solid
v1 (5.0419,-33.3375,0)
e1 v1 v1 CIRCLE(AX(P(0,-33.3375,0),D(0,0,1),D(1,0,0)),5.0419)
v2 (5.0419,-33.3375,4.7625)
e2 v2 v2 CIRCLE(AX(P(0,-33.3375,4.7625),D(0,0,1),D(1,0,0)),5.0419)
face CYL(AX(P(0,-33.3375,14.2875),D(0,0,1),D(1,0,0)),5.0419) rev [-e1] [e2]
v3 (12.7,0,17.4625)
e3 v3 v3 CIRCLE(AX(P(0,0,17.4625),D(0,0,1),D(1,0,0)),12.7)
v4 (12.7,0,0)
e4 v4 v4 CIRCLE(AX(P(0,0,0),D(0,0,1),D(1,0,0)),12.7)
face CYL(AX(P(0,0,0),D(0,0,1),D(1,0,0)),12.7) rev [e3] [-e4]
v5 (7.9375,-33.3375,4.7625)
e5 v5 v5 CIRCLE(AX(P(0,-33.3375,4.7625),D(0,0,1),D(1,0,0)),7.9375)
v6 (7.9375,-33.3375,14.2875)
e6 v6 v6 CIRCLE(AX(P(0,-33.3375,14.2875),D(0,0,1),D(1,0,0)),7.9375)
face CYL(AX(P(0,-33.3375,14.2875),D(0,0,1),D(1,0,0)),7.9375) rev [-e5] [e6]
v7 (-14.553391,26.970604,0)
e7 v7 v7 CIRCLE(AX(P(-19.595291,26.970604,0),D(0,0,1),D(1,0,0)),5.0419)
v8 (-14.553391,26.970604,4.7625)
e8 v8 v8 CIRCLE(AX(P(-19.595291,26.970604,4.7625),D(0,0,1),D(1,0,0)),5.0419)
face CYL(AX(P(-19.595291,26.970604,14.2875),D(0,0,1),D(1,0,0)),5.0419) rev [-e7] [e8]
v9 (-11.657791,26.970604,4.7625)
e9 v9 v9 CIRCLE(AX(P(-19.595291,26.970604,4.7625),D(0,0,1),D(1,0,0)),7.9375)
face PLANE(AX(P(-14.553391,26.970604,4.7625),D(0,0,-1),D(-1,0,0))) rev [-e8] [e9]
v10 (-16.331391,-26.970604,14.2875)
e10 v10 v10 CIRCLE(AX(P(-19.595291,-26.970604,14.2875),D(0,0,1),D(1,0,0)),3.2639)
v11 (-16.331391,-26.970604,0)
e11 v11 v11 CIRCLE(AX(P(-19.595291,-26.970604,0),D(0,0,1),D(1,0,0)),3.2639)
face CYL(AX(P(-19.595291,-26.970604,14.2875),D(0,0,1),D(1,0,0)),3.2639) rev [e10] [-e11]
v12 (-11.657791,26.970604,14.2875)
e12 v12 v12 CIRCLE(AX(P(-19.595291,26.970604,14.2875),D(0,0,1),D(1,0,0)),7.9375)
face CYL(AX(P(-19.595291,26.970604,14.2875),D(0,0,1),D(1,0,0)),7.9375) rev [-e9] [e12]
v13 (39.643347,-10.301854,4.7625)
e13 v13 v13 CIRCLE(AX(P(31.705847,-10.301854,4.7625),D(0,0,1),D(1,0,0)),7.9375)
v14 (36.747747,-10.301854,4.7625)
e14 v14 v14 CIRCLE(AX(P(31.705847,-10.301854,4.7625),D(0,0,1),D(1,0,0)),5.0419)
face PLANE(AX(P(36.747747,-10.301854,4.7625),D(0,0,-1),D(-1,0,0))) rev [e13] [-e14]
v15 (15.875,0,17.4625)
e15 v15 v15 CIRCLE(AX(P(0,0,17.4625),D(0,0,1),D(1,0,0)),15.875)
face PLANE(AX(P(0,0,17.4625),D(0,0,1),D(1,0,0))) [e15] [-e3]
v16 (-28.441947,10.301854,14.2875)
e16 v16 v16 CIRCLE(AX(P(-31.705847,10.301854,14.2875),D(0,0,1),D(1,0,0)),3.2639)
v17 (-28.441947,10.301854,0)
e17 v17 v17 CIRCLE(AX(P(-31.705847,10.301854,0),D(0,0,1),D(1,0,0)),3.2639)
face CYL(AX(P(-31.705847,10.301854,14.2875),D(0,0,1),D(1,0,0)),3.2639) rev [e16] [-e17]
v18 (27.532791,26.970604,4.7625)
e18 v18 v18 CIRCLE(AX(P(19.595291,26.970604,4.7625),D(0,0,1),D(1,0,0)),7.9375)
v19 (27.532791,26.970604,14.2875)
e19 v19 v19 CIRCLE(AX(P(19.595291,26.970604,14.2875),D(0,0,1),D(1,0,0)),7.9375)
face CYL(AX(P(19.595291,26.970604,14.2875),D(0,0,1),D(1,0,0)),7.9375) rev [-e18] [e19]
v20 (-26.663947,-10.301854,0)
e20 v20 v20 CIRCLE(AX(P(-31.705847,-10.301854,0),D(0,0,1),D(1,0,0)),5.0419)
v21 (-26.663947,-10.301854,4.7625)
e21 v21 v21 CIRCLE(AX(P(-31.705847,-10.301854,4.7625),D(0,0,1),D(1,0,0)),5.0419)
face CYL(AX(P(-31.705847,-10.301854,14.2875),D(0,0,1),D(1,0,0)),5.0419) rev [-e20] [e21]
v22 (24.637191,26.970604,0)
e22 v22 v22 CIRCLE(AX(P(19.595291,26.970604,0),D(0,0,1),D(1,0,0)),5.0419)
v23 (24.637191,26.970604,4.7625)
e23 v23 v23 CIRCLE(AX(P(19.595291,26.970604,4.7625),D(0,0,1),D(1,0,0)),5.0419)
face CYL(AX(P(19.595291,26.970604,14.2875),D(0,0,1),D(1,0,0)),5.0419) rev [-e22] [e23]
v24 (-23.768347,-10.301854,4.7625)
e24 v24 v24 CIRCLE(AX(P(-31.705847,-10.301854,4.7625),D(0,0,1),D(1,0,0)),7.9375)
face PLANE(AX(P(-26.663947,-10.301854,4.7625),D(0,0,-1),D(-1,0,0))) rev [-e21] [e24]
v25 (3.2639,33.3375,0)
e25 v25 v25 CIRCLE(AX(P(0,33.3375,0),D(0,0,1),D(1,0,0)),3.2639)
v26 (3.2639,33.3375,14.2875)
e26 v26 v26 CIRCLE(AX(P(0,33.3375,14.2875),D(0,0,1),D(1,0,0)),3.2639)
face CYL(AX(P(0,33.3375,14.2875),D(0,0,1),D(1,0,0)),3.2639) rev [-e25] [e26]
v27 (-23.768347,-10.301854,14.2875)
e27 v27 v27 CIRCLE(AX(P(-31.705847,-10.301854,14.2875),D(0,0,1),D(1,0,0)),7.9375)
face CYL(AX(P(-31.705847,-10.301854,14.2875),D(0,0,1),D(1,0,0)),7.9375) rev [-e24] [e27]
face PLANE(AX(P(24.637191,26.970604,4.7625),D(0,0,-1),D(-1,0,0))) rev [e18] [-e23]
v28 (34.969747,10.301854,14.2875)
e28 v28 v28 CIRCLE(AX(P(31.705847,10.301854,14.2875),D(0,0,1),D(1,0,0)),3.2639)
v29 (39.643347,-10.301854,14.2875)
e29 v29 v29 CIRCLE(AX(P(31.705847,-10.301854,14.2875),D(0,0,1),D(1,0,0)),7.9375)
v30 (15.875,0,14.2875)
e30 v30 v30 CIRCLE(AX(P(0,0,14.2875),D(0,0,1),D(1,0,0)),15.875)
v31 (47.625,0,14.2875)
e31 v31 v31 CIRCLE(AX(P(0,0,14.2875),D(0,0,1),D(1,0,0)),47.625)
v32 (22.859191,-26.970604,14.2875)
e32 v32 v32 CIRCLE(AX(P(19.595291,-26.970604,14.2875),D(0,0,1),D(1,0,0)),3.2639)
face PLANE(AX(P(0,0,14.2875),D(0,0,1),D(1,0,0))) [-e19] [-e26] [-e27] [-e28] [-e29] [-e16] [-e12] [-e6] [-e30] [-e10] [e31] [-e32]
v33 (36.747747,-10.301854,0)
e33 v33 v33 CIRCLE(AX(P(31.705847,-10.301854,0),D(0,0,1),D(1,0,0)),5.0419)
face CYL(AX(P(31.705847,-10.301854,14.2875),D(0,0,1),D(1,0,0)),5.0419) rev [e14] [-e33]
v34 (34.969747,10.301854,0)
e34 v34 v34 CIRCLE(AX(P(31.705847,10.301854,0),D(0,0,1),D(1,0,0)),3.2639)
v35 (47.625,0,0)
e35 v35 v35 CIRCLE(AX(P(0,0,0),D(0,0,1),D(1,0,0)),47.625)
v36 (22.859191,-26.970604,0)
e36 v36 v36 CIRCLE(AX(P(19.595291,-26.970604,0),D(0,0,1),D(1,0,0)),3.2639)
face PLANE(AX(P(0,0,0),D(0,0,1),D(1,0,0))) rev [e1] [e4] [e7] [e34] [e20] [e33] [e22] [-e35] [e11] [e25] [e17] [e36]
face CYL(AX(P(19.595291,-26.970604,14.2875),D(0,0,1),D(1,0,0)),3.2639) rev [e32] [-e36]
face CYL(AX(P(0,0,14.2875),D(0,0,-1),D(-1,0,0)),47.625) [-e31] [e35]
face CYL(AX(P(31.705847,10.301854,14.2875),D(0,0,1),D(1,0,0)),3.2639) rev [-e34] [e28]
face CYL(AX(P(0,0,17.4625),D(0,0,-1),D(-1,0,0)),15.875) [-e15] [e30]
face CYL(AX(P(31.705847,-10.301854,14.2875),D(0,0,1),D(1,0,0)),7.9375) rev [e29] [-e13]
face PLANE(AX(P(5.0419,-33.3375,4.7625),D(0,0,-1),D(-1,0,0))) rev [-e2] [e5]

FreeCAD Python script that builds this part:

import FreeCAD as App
import Part
import Sketcher

V = App.Vector
Q = App.Units.Quantity

doc = App.newDocument("Part")
params = doc.addObject("Spreadsheet::Sheet", "Params")
for row, (alias, value) in enumerate([
    ("sketch1_diameter", "3.75 in"),
    ("pad1_length", "0.5625 in"),
    ("sketch2_diameter", "1 in"),
    ("sketch3_diameter", "1 in"),
    ("sketch3_diameter2", "1.25 in"),
    ("pad2_length", "0.125 in"),
    ("sketch4_diameter", "0.397 in"),
    ("hole_diameter", "0.397 in"),
    ("hole_cbore_diameter", "0.625 in"),
    ("hole_cbore_depth", "0.375 in"),
    ("sketch5_diameter", "0.257 in"),
    ("hole2_diameter", "0.257 in"),
], start=1):
    params.set(f"A{row}", alias)
    params.set(f"B{row}", "=" + value)
    params.setAlias(f"B{row}", alias)

body = doc.addObject("PartDesign::Body", "Body")

sketch1 = doc.addObject("Sketcher::SketchObject", "Sketch")
body.addObject(sketch1)
sketch1.AttachmentSupport = (doc.XY_Plane, [""])
sketch1.MapMode = "FlatFace"
sketch1.addGeometry(Part.Circle(V(0, 0, 0), V(0, 0, 1), 47.625), False)
sketch1.addConstraint([
    Sketcher.Constraint("Coincident", 0, 3, -1, 1),
    Sketcher.Constraint("Diameter", 0, Q("3.75 in")),
])
sketch1.setExpression("Constraints[1]", "Params.sketch1_diameter")
pad1 = doc.addObject("PartDesign::Pad", "Pad")
body.addObject(pad1)
pad1.Profile = sketch1
pad1.setExpression("Length", "Params.pad1_length")

sketch2 = doc.addObject("Sketcher::SketchObject", "Sketch001")
body.addObject(sketch2)
sketch2.AttachmentSupport = (doc.XY_Plane, [""])
sketch2.MapMode = "FlatFace"
sketch2.AttachmentOffset = App.Placement(V(0, 0, 0.5625 * 25.4), App.Rotation())
sketch2.addGeometry(Part.Circle(V(0, 0, 0), V(0, 0, 1), 12.7), False)
sketch2.addConstraint([
    Sketcher.Constraint("Coincident", 0, 3, -1, 1),
    Sketcher.Constraint("Diameter", 0, Q("1 in")),
])
sketch2.setExpression("Constraints[1]", "Params.sketch2_diameter")
pocket1 = doc.addObject("PartDesign::Pocket", "Pocket")
body.addObject(pocket1)
pocket1.Profile = sketch2
pocket1.Type = "ThroughAll"

sketch3 = doc.addObject("Sketcher::SketchObject", "Sketch002")
body.addObject(sketch3)
sketch3.AttachmentSupport = (doc.XY_Plane, [""])
sketch3.MapMode = "FlatFace"
sketch3.AttachmentOffset = App.Placement(V(0, 0, 0.6875 * 25.4), App.Rotation())
sketch3.addGeometry([
    Part.Circle(V(0, 0, 0), V(0, 0, 1), 15.875),
    Part.Circle(V(0, 0, 0), V(0, 0, 1), 12.7),
], False)
sketch3.addConstraint([
    Sketcher.Constraint("Coincident", 0, 3, -1, 1),
    Sketcher.Constraint("Coincident", 1, 3, -1, 1),
    Sketcher.Constraint("Diameter", 1, Q("1 in")),
    Sketcher.Constraint("Diameter", 0, Q("1.25 in")),
])
sketch3.setExpression("Constraints[2]", "Params.sketch3_diameter")
sketch3.setExpression("Constraints[3]", "Params.sketch3_diameter2")
pad2 = doc.addObject("PartDesign::Pad", "Pad001")
body.addObject(pad2)
pad2.Profile = sketch3
pad2.setExpression("Length", "Params.pad2_length")
pad2.Reversed = True

sketch4 = doc.addObject("Sketcher::SketchObject", "Sketch003")
body.addObject(sketch4)
sketch4.AttachmentSupport = (doc.XY_Plane, [""])
sketch4.MapMode = "FlatFace"
sketch4.AttachmentOffset = App.Placement(V(0, 0, 0.5625 * 25.4), App.Rotation())
sketch4.addGeometry([
    Part.Circle(V(0, -33.3375, 0), V(0, 0, 1), 5.0419),
    Part.Circle(V(-31.705847, -10.301854, 0), V(0, 0, 1), 5.0419),
    Part.Circle(V(-19.595291, 26.970604, 0), V(0, 0, 1), 5.0419),
    Part.Circle(V(19.595291, 26.970604, 0), V(0, 0, 1), 5.0419),
    Part.Circle(V(31.705847, -10.301854, 0), V(0, 0, 1), 5.0419),
    Part.Circle(V(0, 0, 0), V(0, 0, 1), 5.0419),
], False)
sketch4.addConstraint([
    Sketcher.Constraint("Coincident", 5, 3, -1, 1),
    Sketcher.Constraint("Equal", 0, 1),
    Sketcher.Constraint("Equal", 1, 2),
    Sketcher.Constraint("Equal", 2, 3),
    Sketcher.Constraint("Equal", 3, 4),
    Sketcher.Constraint("Equal", 4, 5),
    Sketcher.Constraint("Symmetric", 2, 3, 3, 3, -2),
    Sketcher.Constraint("Symmetric", 1, 3, 4, 3, -2),
    Sketcher.Constraint("PointOnObject", 0, 3, -2),
    Sketcher.Constraint("Diameter", 0, Q("0.397 in")),
    Sketcher.Constraint("DistanceY", 0, 3, -1, 1, Q("1.3125 in")),
    Sketcher.Constraint("DistanceX", 2, 3, -1, 1, 19.595291),
    Sketcher.Constraint("DistanceY", 1, 3, 2, 3, 37.272458),
    Sketcher.Constraint("DistanceX", 1, 3, -1, 1, 31.705847),
    Sketcher.Constraint("DistanceY", 1, 3, -1, 1, 10.301854),
])
sketch4.setExpression("Constraints[9]", "Params.sketch4_diameter")
doc.recompute()
hole = doc.addObject("PartDesign::Hole", "Hole")
body.addObject(hole)
hole.Profile = sketch4
hole.ThreadType = "None"
hole.setExpression("Diameter", "Params.hole_diameter")
hole.DepthType = "ThroughAll"
hole.HoleCutType = "Counterbore"
hole.setExpression("HoleCutDiameter", "Params.hole_cbore_diameter")
hole.setExpression("HoleCutDepth", "Params.hole_cbore_depth")

sketch5 = doc.addObject("Sketcher::SketchObject", "Sketch004")
body.addObject(sketch5)
sketch5.AttachmentSupport = (doc.XY_Plane, [""])
sketch5.MapMode = "FlatFace"
sketch5.AttachmentOffset = App.Placement(V(0, 0, 0.5625 * 25.4), App.Rotation())
sketch5.addGeometry([
    Part.Circle(V(-19.595291, -26.970604, 0), V(0, 0, 1), 3.2639),
    Part.Circle(V(-31.705847, 10.301854, 0), V(0, 0, 1), 3.2639),
    Part.Circle(V(0, 33.3375, 0), V(0, 0, 1), 3.2639),
    Part.Circle(V(31.705847, 10.301854, 0), V(0, 0, 1), 3.2639),
    Part.Circle(V(19.595291, -26.970604, 0), V(0, 0, 1), 3.2639),
    Part.Circle(V(0, 0, 0), V(0, 0, 1), 3.2639),
], False)
sketch5.addConstraint([
    Sketcher.Constraint("Coincident", 5, 3, -1, 1),
    Sketcher.Constraint("Equal", 0, 1),
    Sketcher.Constraint("Equal", 1, 2),
    Sketcher.Constraint("Equal", 2, 3),
    Sketcher.Constraint("Equal", 3, 4),
    Sketcher.Constraint("Equal", 4, 5),
    Sketcher.Constraint("Symmetric", 1, 3, 3, 3, -2),
    Sketcher.Constraint("Symmetric", 0, 3, 4, 3, -2),
    Sketcher.Constraint("PointOnObject", 2, 3, -2),
    Sketcher.Constraint("Diameter", 0, Q("0.257 in")),
    Sketcher.Constraint("DistanceY", -1, 1, 2, 3, Q("1.3125 in")),
    Sketcher.Constraint("DistanceX", 0, 3, -1, 1, 19.595291),
    Sketcher.Constraint("DistanceY", 0, 3, 1, 3, 37.272458),
    Sketcher.Constraint("DistanceY", 0, 3, -1, 1, 26.970604),
    Sketcher.Constraint("DistanceX", 1, 3, -1, 1, 31.705847),
])
sketch5.setExpression("Constraints[9]", "Params.sketch5_diameter")
doc.recompute()
hole2 = doc.addObject("PartDesign::Hole", "Hole001")
body.addObject(hole2)
hole2.Profile = sketch5
hole2.ThreadType = "None"
hole2.setExpression("Diameter", "Params.hole2_diameter")
hole2.DepthType = "ThroughAll"

doc.recompute()
